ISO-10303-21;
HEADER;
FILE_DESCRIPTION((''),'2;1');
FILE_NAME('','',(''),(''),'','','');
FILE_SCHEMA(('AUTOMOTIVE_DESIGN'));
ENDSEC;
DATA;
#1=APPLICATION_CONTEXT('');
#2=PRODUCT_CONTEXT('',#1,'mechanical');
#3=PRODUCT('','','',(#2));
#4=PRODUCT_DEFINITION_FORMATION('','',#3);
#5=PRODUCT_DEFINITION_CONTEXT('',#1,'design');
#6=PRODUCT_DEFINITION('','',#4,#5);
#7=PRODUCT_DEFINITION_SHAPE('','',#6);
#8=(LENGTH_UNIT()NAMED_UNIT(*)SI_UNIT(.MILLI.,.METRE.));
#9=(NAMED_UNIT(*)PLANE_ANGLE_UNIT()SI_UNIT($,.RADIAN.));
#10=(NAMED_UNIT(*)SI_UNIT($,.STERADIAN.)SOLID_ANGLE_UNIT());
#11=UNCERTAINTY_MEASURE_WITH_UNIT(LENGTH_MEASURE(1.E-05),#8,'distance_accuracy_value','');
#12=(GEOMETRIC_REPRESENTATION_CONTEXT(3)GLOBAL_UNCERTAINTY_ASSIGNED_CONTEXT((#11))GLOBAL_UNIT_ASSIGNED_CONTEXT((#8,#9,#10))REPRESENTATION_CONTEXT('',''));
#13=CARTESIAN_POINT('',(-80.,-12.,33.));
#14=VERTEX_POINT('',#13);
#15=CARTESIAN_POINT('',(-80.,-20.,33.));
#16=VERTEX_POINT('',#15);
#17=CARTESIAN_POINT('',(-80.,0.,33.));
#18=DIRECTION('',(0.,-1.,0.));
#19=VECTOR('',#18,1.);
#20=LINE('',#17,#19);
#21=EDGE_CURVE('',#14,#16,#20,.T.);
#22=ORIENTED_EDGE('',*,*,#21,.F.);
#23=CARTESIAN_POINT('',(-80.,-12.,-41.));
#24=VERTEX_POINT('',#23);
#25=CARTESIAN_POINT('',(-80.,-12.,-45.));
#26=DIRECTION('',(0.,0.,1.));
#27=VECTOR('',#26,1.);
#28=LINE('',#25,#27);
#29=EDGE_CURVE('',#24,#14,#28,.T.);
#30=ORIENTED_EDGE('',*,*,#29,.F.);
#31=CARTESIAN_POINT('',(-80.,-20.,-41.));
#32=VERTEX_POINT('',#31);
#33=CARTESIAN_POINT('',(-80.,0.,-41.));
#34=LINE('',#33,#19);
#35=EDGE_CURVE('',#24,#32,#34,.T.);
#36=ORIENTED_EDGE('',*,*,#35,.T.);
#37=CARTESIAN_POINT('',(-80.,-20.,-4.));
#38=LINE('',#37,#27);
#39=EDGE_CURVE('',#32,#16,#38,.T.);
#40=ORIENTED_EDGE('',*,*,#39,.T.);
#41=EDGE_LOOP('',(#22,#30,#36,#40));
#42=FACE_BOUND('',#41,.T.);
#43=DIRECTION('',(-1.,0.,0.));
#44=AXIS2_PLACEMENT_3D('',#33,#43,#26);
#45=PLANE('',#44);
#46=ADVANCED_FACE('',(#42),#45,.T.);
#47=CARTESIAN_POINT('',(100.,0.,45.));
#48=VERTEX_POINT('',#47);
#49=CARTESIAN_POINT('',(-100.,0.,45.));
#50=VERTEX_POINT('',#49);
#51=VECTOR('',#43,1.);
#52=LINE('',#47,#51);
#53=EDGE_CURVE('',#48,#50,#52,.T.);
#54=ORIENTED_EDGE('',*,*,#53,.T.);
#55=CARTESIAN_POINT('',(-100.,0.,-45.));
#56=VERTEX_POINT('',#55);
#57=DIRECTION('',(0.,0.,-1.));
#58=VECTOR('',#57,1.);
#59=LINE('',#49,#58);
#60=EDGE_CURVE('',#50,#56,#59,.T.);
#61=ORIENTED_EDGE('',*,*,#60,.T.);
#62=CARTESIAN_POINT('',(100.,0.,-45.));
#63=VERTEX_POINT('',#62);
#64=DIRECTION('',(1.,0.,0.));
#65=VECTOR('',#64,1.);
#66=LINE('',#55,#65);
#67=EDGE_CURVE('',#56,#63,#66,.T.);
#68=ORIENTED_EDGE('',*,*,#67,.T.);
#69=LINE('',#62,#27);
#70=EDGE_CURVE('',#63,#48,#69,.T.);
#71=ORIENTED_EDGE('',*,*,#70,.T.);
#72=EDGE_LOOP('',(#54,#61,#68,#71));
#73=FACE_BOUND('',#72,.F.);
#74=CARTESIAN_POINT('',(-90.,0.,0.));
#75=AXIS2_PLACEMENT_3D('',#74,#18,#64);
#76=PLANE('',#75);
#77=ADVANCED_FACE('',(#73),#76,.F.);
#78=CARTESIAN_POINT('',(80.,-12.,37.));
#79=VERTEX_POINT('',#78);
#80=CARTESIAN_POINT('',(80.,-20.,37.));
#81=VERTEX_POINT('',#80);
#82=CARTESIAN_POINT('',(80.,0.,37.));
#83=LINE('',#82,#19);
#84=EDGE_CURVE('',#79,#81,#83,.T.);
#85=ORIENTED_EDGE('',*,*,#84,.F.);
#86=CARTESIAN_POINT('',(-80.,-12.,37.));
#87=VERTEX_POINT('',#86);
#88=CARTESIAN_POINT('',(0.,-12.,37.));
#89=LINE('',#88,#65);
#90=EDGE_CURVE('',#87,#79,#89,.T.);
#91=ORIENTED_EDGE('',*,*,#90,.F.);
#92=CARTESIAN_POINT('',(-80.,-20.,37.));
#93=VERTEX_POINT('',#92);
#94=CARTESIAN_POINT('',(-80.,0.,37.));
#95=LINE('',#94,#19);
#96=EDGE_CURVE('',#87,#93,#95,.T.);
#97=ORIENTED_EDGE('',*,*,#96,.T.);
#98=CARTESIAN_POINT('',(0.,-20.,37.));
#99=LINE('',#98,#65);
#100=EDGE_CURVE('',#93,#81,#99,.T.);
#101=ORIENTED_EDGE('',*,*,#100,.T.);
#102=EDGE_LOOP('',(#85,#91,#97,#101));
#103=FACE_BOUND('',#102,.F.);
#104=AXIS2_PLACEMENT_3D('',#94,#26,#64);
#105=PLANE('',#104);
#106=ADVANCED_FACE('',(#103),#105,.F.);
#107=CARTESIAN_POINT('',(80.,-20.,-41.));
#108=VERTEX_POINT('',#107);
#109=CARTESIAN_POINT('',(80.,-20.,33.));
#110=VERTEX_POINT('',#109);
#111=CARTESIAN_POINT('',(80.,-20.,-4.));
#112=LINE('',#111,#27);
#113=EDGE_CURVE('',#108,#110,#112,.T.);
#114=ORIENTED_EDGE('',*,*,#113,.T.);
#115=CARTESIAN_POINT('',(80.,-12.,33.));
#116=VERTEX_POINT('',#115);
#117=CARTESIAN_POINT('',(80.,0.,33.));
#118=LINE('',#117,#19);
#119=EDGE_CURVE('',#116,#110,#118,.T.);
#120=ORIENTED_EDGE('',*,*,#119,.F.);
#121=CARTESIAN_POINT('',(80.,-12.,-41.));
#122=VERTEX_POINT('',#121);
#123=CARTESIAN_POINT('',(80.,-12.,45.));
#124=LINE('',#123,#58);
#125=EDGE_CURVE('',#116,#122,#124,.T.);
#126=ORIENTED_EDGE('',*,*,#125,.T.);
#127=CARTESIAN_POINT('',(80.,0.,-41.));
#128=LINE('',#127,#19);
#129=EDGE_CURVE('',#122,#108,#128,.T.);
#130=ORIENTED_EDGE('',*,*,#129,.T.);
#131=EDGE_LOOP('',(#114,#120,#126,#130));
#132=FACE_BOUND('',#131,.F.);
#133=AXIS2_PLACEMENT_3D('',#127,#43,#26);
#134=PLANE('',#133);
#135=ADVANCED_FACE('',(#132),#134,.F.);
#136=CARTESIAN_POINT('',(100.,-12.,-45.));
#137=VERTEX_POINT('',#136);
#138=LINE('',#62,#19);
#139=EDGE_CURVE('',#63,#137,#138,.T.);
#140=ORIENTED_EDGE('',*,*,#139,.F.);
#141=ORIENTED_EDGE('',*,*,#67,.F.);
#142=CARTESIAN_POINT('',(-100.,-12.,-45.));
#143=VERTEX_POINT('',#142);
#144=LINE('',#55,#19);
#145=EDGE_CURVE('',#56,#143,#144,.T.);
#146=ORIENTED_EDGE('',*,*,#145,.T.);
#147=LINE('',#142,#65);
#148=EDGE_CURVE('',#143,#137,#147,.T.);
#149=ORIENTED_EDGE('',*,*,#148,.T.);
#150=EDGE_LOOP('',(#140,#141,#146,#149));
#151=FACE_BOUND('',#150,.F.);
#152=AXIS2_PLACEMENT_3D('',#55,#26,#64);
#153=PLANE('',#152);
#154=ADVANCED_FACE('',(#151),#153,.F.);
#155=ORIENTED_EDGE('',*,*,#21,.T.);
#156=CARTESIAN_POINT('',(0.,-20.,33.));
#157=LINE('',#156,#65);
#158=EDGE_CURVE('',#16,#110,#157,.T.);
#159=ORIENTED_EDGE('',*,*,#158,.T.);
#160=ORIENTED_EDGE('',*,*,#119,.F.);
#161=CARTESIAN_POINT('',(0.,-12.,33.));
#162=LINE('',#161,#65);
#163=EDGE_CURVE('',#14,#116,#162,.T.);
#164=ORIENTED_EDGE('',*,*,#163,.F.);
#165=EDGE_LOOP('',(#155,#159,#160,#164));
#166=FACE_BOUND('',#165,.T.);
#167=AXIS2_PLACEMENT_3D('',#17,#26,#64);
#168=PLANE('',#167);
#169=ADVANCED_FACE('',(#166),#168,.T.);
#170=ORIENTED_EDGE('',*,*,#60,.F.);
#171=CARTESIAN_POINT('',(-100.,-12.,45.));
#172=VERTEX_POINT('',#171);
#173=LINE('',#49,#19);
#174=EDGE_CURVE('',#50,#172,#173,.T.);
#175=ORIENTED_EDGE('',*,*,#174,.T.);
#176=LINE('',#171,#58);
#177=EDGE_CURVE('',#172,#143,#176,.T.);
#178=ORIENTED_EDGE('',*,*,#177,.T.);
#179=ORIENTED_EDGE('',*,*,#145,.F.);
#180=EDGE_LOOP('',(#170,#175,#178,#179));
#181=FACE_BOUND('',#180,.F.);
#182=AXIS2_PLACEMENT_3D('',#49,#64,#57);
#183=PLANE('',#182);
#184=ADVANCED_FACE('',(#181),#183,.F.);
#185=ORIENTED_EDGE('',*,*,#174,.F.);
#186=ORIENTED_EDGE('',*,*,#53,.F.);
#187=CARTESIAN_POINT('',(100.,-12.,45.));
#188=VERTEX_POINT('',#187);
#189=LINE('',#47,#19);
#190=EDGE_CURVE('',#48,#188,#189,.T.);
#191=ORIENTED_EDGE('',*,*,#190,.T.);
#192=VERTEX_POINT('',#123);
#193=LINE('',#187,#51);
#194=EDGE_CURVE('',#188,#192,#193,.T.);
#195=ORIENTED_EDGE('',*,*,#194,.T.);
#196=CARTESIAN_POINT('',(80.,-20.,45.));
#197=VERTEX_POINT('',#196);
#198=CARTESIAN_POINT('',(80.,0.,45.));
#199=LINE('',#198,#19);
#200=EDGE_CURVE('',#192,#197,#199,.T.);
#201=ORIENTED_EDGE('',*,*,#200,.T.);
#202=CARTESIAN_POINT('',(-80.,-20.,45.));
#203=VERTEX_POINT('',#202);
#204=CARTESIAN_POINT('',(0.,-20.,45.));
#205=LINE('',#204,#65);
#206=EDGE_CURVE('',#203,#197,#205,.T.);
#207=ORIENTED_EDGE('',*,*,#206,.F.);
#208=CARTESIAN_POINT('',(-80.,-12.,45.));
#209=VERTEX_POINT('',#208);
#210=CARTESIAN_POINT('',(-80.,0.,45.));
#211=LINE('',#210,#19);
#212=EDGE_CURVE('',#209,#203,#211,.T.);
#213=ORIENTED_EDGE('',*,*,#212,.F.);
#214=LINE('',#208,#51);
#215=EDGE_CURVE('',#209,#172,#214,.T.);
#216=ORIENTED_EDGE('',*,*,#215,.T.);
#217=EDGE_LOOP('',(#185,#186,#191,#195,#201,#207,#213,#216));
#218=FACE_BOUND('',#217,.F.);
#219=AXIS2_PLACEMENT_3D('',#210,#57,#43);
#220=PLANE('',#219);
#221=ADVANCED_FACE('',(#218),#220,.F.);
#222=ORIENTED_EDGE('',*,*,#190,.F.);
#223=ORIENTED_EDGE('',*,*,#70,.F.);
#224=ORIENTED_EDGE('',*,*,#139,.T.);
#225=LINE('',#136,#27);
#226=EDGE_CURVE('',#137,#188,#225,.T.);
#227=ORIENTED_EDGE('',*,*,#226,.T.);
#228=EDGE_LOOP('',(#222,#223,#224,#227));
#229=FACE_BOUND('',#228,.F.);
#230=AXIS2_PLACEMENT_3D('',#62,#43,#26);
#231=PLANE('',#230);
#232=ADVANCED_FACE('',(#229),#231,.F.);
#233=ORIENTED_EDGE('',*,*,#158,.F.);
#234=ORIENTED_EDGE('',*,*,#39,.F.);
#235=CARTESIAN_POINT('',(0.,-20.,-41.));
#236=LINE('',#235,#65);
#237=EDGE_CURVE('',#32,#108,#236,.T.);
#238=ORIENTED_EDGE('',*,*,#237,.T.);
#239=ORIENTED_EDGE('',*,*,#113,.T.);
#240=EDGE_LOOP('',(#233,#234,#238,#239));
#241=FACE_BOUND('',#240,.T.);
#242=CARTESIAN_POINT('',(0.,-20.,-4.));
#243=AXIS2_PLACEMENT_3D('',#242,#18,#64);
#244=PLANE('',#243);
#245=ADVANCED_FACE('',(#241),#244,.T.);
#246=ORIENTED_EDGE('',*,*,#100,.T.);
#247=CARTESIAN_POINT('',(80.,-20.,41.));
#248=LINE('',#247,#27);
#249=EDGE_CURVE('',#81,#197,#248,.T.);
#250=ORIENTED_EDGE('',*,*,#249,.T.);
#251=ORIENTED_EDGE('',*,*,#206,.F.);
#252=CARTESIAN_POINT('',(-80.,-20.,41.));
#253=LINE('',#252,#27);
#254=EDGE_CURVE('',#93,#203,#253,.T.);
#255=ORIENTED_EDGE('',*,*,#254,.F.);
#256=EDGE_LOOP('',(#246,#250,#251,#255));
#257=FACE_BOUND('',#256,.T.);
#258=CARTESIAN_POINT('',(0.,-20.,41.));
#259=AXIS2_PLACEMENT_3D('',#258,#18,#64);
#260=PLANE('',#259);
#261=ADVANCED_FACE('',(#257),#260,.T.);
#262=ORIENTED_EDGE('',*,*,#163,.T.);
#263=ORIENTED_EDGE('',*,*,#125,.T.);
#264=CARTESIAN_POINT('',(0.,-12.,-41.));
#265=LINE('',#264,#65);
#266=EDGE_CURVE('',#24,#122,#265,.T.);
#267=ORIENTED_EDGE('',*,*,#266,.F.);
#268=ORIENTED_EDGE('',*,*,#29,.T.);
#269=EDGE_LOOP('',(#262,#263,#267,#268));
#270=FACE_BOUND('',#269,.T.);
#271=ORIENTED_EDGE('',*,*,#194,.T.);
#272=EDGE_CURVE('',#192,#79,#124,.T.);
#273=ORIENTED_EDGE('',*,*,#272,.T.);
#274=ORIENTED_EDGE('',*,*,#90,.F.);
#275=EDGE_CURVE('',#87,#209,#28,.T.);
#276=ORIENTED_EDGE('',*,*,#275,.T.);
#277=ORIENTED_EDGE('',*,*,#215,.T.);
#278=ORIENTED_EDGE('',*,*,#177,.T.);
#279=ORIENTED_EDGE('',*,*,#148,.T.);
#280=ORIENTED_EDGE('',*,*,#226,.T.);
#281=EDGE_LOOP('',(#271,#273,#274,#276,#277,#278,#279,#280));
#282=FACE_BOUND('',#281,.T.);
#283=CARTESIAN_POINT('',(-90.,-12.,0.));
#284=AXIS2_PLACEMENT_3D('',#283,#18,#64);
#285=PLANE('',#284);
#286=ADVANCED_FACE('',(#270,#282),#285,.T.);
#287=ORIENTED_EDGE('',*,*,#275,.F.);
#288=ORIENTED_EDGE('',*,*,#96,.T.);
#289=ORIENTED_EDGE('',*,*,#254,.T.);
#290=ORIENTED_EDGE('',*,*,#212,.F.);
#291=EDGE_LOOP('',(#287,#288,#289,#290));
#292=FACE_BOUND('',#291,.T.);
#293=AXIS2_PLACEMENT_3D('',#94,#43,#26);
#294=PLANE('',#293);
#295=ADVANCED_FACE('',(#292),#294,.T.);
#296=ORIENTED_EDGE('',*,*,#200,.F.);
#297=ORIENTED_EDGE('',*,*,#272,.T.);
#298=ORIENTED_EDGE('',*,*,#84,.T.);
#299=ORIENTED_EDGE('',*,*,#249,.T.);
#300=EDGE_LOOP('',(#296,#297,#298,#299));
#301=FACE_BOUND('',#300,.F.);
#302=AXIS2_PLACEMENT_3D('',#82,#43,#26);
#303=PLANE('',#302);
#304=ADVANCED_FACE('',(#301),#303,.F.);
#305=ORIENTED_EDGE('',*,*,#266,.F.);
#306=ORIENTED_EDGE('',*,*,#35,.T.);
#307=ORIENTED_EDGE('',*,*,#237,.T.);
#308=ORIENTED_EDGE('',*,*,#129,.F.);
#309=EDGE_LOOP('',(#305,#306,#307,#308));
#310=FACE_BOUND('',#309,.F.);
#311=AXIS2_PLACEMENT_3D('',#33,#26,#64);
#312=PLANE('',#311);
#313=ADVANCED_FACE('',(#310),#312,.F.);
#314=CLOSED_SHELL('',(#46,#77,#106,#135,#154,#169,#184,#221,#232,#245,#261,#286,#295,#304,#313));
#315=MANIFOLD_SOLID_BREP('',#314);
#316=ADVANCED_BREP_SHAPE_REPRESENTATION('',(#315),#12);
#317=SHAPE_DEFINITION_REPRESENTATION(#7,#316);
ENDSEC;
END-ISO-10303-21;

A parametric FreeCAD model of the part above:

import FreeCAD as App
import Part
import Sketcher

V = App.Vector
Q = App.Units.Quantity

doc = App.newDocument("Part")
body = doc.addObject("PartDesign::Body", "Body")

# Sketch on XZ plane
sketch1 = body.newObject("Sketcher::SketchObject", "Sketch")
sketch1.AttachmentSupport = (doc.getObject("XZ_Plane"), [""])
sketch1.MapMode = "FlatFace"
sketch1.addGeometry([
    Part.LineSegment(V(-80, 45, 0), V(-100, 45, 0)),  # 0
    Part.LineSegment(V(-100, 45, 0), V(-100, -45, 0)),  # 1
    Part.LineSegment(V(-100, -45, 0), V(100, -45, 0)),  # 2
    Part.LineSegment(V(100, -45, 0), V(100, 45, 0)),  # 3
    Part.LineSegment(V(100, 45, 0), V(80, 45, 0)),  # 4
    Part.LineSegment(V(80, 45, 0), V(80, 37, 0)),  # 5
    Part.LineSegment(V(80, 37, 0), V(-80, 37, 0)),  # 6
    Part.LineSegment(V(-80, 37, 0), V(-80, 45, 0)),  # 7
    Part.LineSegment(V(80, 33, 0), V(80, -41, 0)),  # 8
    Part.LineSegment(V(80, -41, 0), V(-80, -41, 0)),  # 9
    Part.LineSegment(V(-80, -41, 0), V(-80, 33, 0)),  # 10
    Part.LineSegment(V(-80, 33, 0), V(80, 33, 0)),  # 11
], False)
sketch1.addConstraint([
    Sketcher.Constraint("Coincident", 0, 2, 1, 1),
    Sketcher.Constraint("Coincident", 1, 2, 2, 1),
    Sketcher.Constraint("Coincident", 2, 2, 3, 1),
    Sketcher.Constraint("Coincident", 3, 2, 4, 1),
    Sketcher.Constraint("Coincident", 4, 2, 5, 1),
    Sketcher.Constraint("Coincident", 5, 2, 6, 1),
    Sketcher.Constraint("Coincident", 6, 2, 7, 1),
    Sketcher.Constraint("Coincident", 7, 2, 0, 1),
    Sketcher.Constraint("Coincident", 8, 2, 9, 1),
    Sketcher.Constraint("Coincident", 9, 2, 10, 1),
    Sketcher.Constraint("Coincident", 10, 2, 11, 1),
    Sketcher.Constraint("Coincident", 11, 2, 8, 1),
    Sketcher.Constraint("Horizontal", 0),
    Sketcher.Constraint("Vertical", 1),
    Sketcher.Constraint("Horizontal", 2),
    Sketcher.Constraint("Vertical", 3),
    Sketcher.Constraint("Horizontal", 4),
    Sketcher.Constraint("Vertical", 5),
    Sketcher.Constraint("Horizontal", 6),
    Sketcher.Constraint("Vertical", 7),
    Sketcher.Constraint("Vertical", 8),
    Sketcher.Constraint("Horizontal", 9),
    Sketcher.Constraint("Vertical", 10),
    Sketcher.Constraint("Horizontal", 11),
    Sketcher.Constraint("Symmetric", 0, 2, 2, 2, -1, 1),
    Sketcher.Constraint("Symmetric", 4, 2, 7, 2, -2),
    Sketcher.Constraint("Vertical", 5, 2, 8, 2),
    Sketcher.Constraint("Vertical", 7, 2, 9, 2),
    Sketcher.Constraint("DistanceX", 0, 2, 0, 1, Q("20 mm")),
    Sketcher.Constraint("DistanceX", 2, 1, 2, 2, Q("200 mm")),
    Sketcher.Constraint("DistanceY", 1, 2, 1, 1, Q("90 mm")),
    Sketcher.Constraint("DistanceY", 5, 2, 5, 1, Q("8 mm")),
    Sketcher.Constraint("DistanceY", 8, 2, 8, 1, Q("74 mm")),
    Sketcher.Constraint("DistanceY", 8, 2, -1, 1, Q("41 mm")),
])
pad1 = body.newObject("PartDesign::Pad", "Pad")
pad1.Profile = sketch1
pad1.Length = 12

# Sketch on XZ plane
sketch2 = body.newObject("Sketcher::SketchObject", "Sketch001")
sketch2.AttachmentSupport = (doc.getObject("XZ_Plane"), [""])
sketch2.MapMode = "FlatFace"
sketch2.addGeometry([
    Part.LineSegment(V(-80, 33, 0), V(-80, -41, 0)),  # 0
    Part.LineSegment(V(-80, -41, 0), V(80, -41, 0)),  # 1
    Part.LineSegment(V(80, -41, 0), V(80, 33, 0)),  # 2
    Part.LineSegment(V(80, 33, 0), V(-80, 33, 0)),  # 3
    Part.LineSegment(V(-80, 45, 0), V(-80, 37, 0)),  # 4
    Part.LineSegment(V(-80, 37, 0), V(80, 37, 0)),  # 5
    Part.LineSegment(V(80, 37, 0), V(80, 45, 0)),  # 6
    Part.LineSegment(V(80, 45, 0), V(-80, 45, 0)),  # 7
], False)
sketch2.addConstraint([
    Sketcher.Constraint("Coincident", 0, 2, 1, 1),
    Sketcher.Constraint("Coincident", 1, 2, 2, 1),
    Sketcher.Constraint("Coincident", 2, 2, 3, 1),
    Sketcher.Constraint("Coincident", 3, 2, 0, 1),
    Sketcher.Constraint("Coincident", 4, 2, 5, 1),
    Sketcher.Constraint("Coincident", 5, 2, 6, 1),
    Sketcher.Constraint("Coincident", 6, 2, 7, 1),
    Sketcher.Constraint("Coincident", 7, 2, 4, 1),
    Sketcher.Constraint("Vertical", 0),
    Sketcher.Constraint("Horizontal", 1),
    Sketcher.Constraint("Vertical", 2),
    Sketcher.Constraint("Horizontal", 3),
    Sketcher.Constraint("Vertical", 4),
    Sketcher.Constraint("Horizontal", 5),
    Sketcher.Constraint("Vertical", 6),
    Sketcher.Constraint("Horizontal", 7),
    Sketcher.Constraint("Vertical", 3, 2, 4, 2),
    Sketcher.Constraint("Vertical", 2, 2, 5, 2),
    Sketcher.Constraint("DistanceX", 1, 1, 1, 2, Q("160 mm")),
    Sketcher.Constraint("DistanceY", 0, 2, 0, 1, Q("74 mm")),
    Sketcher.Constraint("DistanceY", 4, 2, 4, 1, Q("8 mm")),
    Sketcher.Constraint("DistanceX", 0, 2, -1, 1, Q("80 mm")),
    Sketcher.Constraint("DistanceY", 0, 2, -1, 1, Q("41 mm")),
    Sketcher.Constraint("DistanceY", -1, 1, 4, 2, Q("37 mm")),
])
pad2 = body.newObject("PartDesign::Pad", "Pad001")
pad2.Profile = sketch2
pad2.Length = 20

doc.recompute()
